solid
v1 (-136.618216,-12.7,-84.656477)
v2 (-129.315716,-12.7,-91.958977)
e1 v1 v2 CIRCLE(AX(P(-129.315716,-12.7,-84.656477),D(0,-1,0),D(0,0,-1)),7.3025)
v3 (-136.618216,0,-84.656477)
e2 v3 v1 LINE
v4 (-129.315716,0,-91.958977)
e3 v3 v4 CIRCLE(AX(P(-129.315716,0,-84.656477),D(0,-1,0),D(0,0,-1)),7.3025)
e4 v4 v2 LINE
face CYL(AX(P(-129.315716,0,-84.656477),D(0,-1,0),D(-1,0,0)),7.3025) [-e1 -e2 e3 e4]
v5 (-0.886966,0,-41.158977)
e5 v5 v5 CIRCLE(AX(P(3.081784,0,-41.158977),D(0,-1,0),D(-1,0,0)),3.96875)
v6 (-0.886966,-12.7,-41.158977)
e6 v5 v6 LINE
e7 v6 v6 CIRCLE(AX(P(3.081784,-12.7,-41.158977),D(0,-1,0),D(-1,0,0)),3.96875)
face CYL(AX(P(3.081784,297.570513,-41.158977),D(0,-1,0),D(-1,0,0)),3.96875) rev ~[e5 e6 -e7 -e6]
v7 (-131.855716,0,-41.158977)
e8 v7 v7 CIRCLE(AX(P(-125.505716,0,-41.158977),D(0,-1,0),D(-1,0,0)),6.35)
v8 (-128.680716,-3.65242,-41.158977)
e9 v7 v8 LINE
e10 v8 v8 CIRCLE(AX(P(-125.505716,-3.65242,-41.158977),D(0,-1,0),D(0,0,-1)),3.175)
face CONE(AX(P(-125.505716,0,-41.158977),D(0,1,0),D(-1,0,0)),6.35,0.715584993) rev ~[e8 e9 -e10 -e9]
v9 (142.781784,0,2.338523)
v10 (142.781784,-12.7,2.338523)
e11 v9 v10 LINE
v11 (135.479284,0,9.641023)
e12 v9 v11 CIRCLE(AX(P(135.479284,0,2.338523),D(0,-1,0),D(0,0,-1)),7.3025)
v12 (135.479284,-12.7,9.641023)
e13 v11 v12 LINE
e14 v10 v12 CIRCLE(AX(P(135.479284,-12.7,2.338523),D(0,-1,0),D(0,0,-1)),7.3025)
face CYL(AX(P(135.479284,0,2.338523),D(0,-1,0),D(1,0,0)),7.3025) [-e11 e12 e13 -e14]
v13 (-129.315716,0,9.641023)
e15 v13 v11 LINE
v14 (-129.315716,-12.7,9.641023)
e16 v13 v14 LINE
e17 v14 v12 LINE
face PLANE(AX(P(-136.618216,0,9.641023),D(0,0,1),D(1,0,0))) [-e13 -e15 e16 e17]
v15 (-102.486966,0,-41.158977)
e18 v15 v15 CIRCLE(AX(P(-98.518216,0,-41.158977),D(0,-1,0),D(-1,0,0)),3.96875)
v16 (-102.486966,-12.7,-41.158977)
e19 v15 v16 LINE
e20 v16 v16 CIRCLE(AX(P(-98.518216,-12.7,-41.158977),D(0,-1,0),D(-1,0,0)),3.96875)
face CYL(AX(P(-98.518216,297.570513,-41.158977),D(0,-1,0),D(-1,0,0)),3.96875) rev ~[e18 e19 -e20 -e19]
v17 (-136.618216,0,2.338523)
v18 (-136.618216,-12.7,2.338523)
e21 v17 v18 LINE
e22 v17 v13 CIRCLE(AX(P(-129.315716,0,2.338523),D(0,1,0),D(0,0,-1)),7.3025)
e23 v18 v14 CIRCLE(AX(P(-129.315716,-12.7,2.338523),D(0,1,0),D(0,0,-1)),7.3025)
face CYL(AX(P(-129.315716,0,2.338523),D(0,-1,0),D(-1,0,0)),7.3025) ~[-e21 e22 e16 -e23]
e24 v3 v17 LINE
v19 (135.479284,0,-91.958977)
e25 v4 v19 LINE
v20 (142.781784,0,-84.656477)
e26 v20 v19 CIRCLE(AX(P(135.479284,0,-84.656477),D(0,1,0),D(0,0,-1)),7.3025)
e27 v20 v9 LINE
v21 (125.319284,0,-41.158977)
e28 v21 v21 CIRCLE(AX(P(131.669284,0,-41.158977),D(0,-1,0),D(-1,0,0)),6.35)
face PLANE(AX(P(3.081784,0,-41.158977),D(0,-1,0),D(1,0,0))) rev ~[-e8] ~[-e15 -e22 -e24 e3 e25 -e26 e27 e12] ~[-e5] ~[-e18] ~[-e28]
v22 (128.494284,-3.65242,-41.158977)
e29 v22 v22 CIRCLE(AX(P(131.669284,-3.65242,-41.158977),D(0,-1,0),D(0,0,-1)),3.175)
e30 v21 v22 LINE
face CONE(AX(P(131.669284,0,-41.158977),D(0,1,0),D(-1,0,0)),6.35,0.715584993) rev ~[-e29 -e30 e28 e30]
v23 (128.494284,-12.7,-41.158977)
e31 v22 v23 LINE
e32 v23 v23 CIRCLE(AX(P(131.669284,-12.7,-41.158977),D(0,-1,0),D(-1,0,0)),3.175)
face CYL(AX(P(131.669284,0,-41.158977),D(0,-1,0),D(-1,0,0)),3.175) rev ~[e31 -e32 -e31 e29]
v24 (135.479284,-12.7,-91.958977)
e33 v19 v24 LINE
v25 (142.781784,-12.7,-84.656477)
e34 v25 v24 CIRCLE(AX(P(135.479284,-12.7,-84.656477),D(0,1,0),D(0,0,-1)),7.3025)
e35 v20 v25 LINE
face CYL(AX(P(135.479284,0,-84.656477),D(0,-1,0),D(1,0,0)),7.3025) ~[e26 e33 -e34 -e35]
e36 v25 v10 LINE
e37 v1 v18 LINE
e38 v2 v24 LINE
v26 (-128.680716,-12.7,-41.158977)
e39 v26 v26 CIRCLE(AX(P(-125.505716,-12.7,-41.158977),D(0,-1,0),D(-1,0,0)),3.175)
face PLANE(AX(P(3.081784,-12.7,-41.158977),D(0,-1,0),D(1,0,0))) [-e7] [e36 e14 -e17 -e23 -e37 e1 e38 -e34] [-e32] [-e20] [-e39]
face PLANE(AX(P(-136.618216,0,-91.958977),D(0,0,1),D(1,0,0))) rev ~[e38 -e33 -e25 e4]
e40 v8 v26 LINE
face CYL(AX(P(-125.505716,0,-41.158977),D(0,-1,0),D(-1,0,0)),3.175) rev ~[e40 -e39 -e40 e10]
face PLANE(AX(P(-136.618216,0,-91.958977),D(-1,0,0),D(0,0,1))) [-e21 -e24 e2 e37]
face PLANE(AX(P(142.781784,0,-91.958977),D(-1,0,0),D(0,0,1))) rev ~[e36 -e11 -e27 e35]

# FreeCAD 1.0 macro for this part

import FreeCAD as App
import Part
import Sketcher
Q = App.Units.Quantity


def edges_at(feature, points):
    """Names of the edges that pass closest to the given points."""
    edges = feature.Shape.Edges
    near = lambda p: min(range(len(edges)), key=lambda i: edges[i].distToShape(Part.Vertex(*p))[0])
    return sorted({f"Edge{near(p) + 1}" for p in points})


def add_polygon(sketch, points):
    """Adds a closed chain of lines whose ends are joined by coincident constraints."""
    first, n = sketch.GeometryCount, len(points)
    for a, b in zip(points, points[1:] + points[:1]):
        sketch.addGeometry(Part.LineSegment(App.Vector(*a, 0), App.Vector(*b, 0)), False)
    for i in range(n):
        sketch.addConstraint(Sketcher.Constraint("Coincident", first + i, 2, first + (i + 1) % n, 1))

doc = App.newDocument("Part")
body = doc.addObject("PartDesign::Body", "Body")

# Sketch on XZ plane
sketch1 = body.newObject("Sketcher::SketchObject", "Sketch")
sketch1.AttachmentSupport = (doc.getObject("XZ_Plane"), [""])
sketch1.MapMode = "FlatFace"
add_polygon(sketch1, [(-137, 10), (-137, -92), (143, -92), (143, 10)])  # lines 0-3
sketch1.addConstraint(Sketcher.Constraint("Vertical", 0))
sketch1.addConstraint(Sketcher.Constraint("Horizontal", 1))
sketch1.addConstraint(Sketcher.Constraint("Vertical", 2))
sketch1.addConstraint(Sketcher.Constraint("Horizontal", 3))
sketch1.addConstraint(Sketcher.Constraint("DistanceX", 1, 1, 1, 2, Q("11 in")))
sketch1.addConstraint(Sketcher.Constraint("DistanceY", 0, 2, 0, 1, Q("4 in")))
sketch1.addConstraint(Sketcher.Constraint("DistanceX", 0, 2, -1, 1, Q("136.618216 mm")))
sketch1.addConstraint(Sketcher.Constraint("DistanceY", 0, 2, -1, 1, Q("91.958977 mm")))
pad1 = body.newObject("PartDesign::Pad", "Pad")
pad1.Profile = sketch1
pad1.Length = Q("0.5 in")

# Sketch on XZ plane
sketch2 = body.newObject("Sketcher::SketchObject", "Sketch001")
sketch2.AttachmentSupport = (doc.getObject("XZ_Plane"), [""])
sketch2.MapMode = "FlatFace"
sketch2.addGeometry(Part.Circle(App.Vector(-98.5, -41.2, 0), App.Vector(0, 0, 1), 4), False)
sketch2.addGeometry(Part.Circle(App.Vector(3.1, -41.2, 0), App.Vector(0, 0, 1), 4), False)
sketch2.addConstraint(Sketcher.Constraint("Equal", 0, 1))
sketch2.addConstraint(Sketcher.Constraint("Horizontal", 0, 3, 1, 3))
sketch2.addConstraint(Sketcher.Constraint("Diameter", 0, Q("0.3125 in")))
sketch2.addConstraint(Sketcher.Constraint("DistanceX", 0, 3, 1, 3, Q("4 in")))
sketch2.addConstraint(Sketcher.Constraint("DistanceX", 0, 3, -1, 1, Q("98.518216 mm")))
sketch2.addConstraint(Sketcher.Constraint("DistanceY", 0, 3, -1, 1, Q("41.158977 mm")))
doc.recompute()
hole = body.newObject("PartDesign::Hole", "Hole")
hole.Profile = sketch2
hole.ThreadType = "None"
hole.Diameter = Q("0.3125 in")
hole.DepthType = "ThroughAll"
hole.Reversed = True

# Sketch on XZ plane
sketch3 = body.newObject("Sketcher::SketchObject", "Sketch002")
sketch3.AttachmentSupport = (doc.getObject("XZ_Plane"), [""])
sketch3.MapMode = "FlatFace"
sketch3.addGeometry(Part.Circle(App.Vector(-125.5, -41.2, 0), App.Vector(0, 0, 1), 3.2), False)
sketch3.addGeometry(Part.Circle(App.Vector(131.7, -41.2, 0), App.Vector(0, 0, 1), 3.2), False)
sketch3.addConstraint(Sketcher.Constraint("Equal", 0, 1))
sketch3.addConstraint(Sketcher.Constraint("Horizontal", 0, 3, 1, 3))
sketch3.addConstraint(Sketcher.Constraint("Diameter", 0, Q("0.25 in")))
sketch3.addConstraint(Sketcher.Constraint("DistanceX", 0, 3, 1, 3, Q("10.125 in")))
sketch3.addConstraint(Sketcher.Constraint("DistanceX", 0, 3, -1, 1, Q("125.505716 mm")))
sketch3.addConstraint(Sketcher.Constraint("DistanceY", 0, 3, -1, 1, Q("41.158977 mm")))
doc.recompute()
hole2 = body.newObject("PartDesign::Hole", "Hole001")
hole2.Profile = sketch3
hole2.ThreadType = "None"
hole2.Diameter = Q("0.25 in")
hole2.DepthType = "ThroughAll"
hole2.HoleCutType = "Countersink"
hole2.HoleCutDiameter = Q("0.5 in")
hole2.HoleCutCountersinkAngle = 82
hole2.Reversed = True
doc.recompute()

fillet = body.newObject("PartDesign::Fillet", "Fillet")
fillet.Base = (hole2, edges_at(hole2, [
    (142.782, -6.35, 9.641),
    (-136.618, -6.35, 9.641),
    (-136.618, -6.35, -91.959),
    (142.782, -6.35, -91.959),
]))
fillet.Radius = Q("0.2875 in")

doc.recompute()
